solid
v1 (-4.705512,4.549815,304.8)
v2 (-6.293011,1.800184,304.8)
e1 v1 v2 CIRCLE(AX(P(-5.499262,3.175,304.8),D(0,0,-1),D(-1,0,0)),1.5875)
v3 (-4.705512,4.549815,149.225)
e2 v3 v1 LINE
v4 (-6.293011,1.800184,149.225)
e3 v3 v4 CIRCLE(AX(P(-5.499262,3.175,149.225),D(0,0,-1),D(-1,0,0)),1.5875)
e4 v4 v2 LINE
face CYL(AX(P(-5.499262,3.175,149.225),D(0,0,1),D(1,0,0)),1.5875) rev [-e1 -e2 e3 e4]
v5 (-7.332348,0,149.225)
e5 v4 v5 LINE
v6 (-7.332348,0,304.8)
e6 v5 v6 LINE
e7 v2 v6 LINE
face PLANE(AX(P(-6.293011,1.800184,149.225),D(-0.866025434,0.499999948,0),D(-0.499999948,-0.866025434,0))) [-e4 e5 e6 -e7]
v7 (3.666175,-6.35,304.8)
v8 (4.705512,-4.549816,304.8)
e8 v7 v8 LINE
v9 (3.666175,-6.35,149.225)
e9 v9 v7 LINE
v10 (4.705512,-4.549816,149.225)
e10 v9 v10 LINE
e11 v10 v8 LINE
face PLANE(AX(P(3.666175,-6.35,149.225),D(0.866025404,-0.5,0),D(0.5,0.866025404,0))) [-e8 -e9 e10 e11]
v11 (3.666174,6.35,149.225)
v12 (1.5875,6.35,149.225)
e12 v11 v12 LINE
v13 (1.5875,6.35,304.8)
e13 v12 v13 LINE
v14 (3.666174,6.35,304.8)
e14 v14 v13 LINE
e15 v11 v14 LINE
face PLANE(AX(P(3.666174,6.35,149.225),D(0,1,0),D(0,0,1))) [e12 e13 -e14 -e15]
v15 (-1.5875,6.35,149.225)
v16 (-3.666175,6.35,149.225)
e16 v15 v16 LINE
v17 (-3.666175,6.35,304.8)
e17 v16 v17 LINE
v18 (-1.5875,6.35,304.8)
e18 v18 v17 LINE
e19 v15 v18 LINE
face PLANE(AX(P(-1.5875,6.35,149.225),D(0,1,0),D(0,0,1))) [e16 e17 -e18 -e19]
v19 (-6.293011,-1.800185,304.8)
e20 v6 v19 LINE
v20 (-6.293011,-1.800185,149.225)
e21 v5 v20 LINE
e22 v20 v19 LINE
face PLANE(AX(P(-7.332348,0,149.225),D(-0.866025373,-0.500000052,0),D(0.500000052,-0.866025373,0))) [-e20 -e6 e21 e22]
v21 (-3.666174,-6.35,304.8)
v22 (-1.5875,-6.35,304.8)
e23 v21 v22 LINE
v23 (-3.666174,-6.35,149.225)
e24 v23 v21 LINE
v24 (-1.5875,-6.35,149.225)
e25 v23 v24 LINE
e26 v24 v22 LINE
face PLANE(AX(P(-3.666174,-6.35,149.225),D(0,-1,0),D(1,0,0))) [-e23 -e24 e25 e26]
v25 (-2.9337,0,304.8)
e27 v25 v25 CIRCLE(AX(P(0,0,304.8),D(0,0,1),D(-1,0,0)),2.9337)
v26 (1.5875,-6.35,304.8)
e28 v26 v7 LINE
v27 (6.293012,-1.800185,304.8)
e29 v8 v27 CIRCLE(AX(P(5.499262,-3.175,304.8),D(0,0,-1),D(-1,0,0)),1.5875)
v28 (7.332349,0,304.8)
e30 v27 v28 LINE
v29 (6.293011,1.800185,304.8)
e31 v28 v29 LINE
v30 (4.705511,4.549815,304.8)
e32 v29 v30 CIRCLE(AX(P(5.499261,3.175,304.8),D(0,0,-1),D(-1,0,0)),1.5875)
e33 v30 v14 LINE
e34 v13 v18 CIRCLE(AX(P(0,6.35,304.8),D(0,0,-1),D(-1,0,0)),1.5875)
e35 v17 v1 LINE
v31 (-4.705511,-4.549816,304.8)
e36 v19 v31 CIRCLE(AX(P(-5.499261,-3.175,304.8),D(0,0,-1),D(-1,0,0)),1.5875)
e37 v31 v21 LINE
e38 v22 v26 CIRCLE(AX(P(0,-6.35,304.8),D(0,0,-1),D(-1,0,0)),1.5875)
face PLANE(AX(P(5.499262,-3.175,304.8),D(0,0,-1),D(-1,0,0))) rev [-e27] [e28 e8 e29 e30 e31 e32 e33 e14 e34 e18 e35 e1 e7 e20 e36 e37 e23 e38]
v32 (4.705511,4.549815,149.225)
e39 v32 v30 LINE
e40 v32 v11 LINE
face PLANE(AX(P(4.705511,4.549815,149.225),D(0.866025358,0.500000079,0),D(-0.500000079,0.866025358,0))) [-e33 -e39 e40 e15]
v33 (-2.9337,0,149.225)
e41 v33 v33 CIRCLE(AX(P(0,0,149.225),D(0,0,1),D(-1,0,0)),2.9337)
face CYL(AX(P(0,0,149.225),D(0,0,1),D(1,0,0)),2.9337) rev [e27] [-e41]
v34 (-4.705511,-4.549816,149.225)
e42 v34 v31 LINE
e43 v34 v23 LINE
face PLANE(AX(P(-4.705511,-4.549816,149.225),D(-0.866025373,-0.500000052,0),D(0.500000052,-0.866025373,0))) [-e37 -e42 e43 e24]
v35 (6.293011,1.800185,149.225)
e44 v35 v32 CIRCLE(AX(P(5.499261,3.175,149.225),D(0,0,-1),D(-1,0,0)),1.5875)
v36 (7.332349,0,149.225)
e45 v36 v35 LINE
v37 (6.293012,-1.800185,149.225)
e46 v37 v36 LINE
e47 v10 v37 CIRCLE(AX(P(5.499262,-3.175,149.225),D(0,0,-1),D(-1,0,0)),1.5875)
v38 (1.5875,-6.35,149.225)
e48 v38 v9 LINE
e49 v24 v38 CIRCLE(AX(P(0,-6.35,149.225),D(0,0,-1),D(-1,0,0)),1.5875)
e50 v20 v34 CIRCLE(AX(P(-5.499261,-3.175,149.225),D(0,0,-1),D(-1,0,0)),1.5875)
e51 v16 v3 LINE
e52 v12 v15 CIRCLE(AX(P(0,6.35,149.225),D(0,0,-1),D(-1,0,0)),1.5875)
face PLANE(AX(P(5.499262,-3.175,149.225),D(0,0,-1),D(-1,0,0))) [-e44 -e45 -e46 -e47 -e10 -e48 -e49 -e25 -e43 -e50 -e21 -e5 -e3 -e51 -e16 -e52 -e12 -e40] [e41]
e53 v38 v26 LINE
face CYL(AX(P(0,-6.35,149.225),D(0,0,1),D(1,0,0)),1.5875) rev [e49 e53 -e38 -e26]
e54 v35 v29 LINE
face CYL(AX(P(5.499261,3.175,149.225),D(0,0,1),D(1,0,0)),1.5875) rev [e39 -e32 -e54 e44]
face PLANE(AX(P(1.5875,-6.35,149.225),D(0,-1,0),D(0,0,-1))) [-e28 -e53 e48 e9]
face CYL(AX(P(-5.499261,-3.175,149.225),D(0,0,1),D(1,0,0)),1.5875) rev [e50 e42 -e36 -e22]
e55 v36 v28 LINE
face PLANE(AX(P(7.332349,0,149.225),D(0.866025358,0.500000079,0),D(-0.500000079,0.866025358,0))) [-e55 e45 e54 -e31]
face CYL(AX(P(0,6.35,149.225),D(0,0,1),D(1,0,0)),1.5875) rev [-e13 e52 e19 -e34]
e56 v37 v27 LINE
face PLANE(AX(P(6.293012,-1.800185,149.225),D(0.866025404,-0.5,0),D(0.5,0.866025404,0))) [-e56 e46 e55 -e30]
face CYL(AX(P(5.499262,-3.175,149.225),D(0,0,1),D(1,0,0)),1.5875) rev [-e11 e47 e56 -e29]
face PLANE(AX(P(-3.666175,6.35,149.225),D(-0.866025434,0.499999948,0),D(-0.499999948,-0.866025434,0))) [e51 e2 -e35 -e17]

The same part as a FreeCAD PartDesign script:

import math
import FreeCAD as App
import Part
import Sketcher

V = App.Vector
Q = App.Units.Quantity

doc = App.newDocument("Part")
params = doc.addObject("Spreadsheet::Sheet", "Params")
for row, (alias, value) in enumerate([
    ("sketch1_diameter", "0.231 in"),
    ("sketch1_radius", "0.0625 in"),
    ("pad1_length", "6.125 in"),
], start=1):
    params.set(f"A{row}", alias)
    params.set(f"B{row}", "=" + value)
    params.setAlias(f"B{row}", alias)

body = doc.addObject("PartDesign::Body", "Body")

sketch1 = body.newObject("Sketcher::SketchObject", "Sketch")
sketch1.AttachmentSupport = (doc.getObject("XY_Plane"), [""])
sketch1.MapMode = "FlatFace"
sketch1.AttachmentOffset = App.Placement(V(0, 0, 12 * 25.4), App.Rotation())
sketch1.addGeometry(Part.LineSegment(V(6.3, -1.8, 0), V(7.3, 0, 0)), False)
sketch1.addGeometry(Part.LineSegment(V(7.3, 0, 0), V(6.3, 1.8, 0)), False)
sketch1.addGeometry(Part.ArcOfCircle(Part.Circle(V(5.5, 3.2, 0), V(0, 0, 1), 1.6), math.radians(120), math.radians(300)), False)
sketch1.addGeometry(Part.LineSegment(V(4.7, 4.5, 0), V(3.7, 6.3, 0)), False)
sketch1.addGeometry(Part.LineSegment(V(3.7, 6.3, 0), V(1.6, 6.3, 0)), False)
sketch1.addGeometry(Part.ArcOfCircle(Part.Circle(V(0, 6.3, 0), V(0, 0, 1), 1.6), math.radians(180), math.radians(360)), False)
sketch1.addGeometry(Part.LineSegment(V(-1.6, 6.3, 0), V(-3.7, 6.3, 0)), False)
sketch1.addGeometry(Part.LineSegment(V(-3.7, 6.3, 0), V(-4.7, 4.5, 0)), False)
sketch1.addGeometry(Part.ArcOfCircle(Part.Circle(V(-5.5, 3.2, 0), V(0, 0, 1), 1.6), math.radians(-120), math.radians(60)), False)
sketch1.addGeometry(Part.LineSegment(V(-6.3, 1.8, 0), V(-7.3, 0, 0)), False)
sketch1.addGeometry(Part.LineSegment(V(-7.3, 0, 0), V(-6.3, -1.8, 0)), False)
sketch1.addGeometry(Part.ArcOfCircle(Part.Circle(V(-5.5, -3.2, 0), V(0, 0, 1), 1.6), math.radians(-60), math.radians(120)), False)
sketch1.addGeometry(Part.LineSegment(V(-4.7, -4.5, 0), V(-3.7, -6.4, 0)), False)
sketch1.addGeometry(Part.LineSegment(V(-3.7, -6.4, 0), V(-1.6, -6.4, 0)), False)
sketch1.addGeometry(Part.ArcOfCircle(Part.Circle(V(0, -6.4, 0), V(0, 0, 1), 1.6), math.radians(0), math.radians(180)), False)
sketch1.addGeometry(Part.LineSegment(V(1.6, -6.4, 0), V(3.7, -6.4, 0)), False)
sketch1.addGeometry(Part.LineSegment(V(3.7, -6.4, 0), V(4.7, -4.5, 0)), False)
sketch1.addGeometry(Part.ArcOfCircle(Part.Circle(V(5.5, -3.2, 0), V(0, 0, 1), 1.6), math.radians(60), math.radians(240)), False)
sketch1.addGeometry(Part.Circle(V(0, 0, 0), V(0, 0, 1), 2.9), False)
sketch1.addConstraint(Sketcher.Constraint("Coincident", 0, 2, 1, 1))
sketch1.addConstraint(Sketcher.Constraint("Coincident", 1, 2, 2, 2))
sketch1.addConstraint(Sketcher.Constraint("Coincident", 2, 1, 3, 1))
sketch1.addConstraint(Sketcher.Constraint("Coincident", 3, 2, 4, 1))
sketch1.addConstraint(Sketcher.Constraint("Coincident", 4, 2, 5, 2))
sketch1.addConstraint(Sketcher.Constraint("Coincident", 5, 1, 6, 1))
sketch1.addConstraint(Sketcher.Constraint("Coincident", 6, 2, 7, 1))
sketch1.addConstraint(Sketcher.Constraint("Coincident", 7, 2, 8, 2))
sketch1.addConstraint(Sketcher.Constraint("Coincident", 8, 1, 9, 1))
sketch1.addConstraint(Sketcher.Constraint("Coincident", 9, 2, 10, 1))
sketch1.addConstraint(Sketcher.Constraint("Coincident", 10, 2, 11, 2))
sketch1.addConstraint(Sketcher.Constraint("Coincident", 11, 1, 12, 1))
sketch1.addConstraint(Sketcher.Constraint("Coincident", 12, 2, 13, 1))
sketch1.addConstraint(Sketcher.Constraint("Coincident", 13, 2, 14, 2))
sketch1.addConstraint(Sketcher.Constraint("Coincident", 14, 1, 15, 1))
sketch1.addConstraint(Sketcher.Constraint("Coincident", 15, 2, 16, 1))
sketch1.addConstraint(Sketcher.Constraint("Coincident", 16, 2, 17, 2))
sketch1.addConstraint(Sketcher.Constraint("Coincident", 17, 1, 0, 1))
sketch1.addConstraint(Sketcher.Constraint("Horizontal", 4))
sketch1.addConstraint(Sketcher.Constraint("Horizontal", 6))
sketch1.addConstraint(Sketcher.Constraint("Horizontal", 13))
sketch1.addConstraint(Sketcher.Constraint("Horizontal", 15))
sketch1.addConstraint(Sketcher.Constraint("Coincident", 18, 3, -1, 1))
sketch1.addConstraint(Sketcher.Constraint("Equal", 2, 5))
sketch1.addConstraint(Sketcher.Constraint("Equal", 5, 8))
sketch1.addConstraint(Sketcher.Constraint("Equal", 8, 11))
sketch1.addConstraint(Sketcher.Constraint("Equal", 11, 14))
sketch1.addConstraint(Sketcher.Constraint("Equal", 14, 17))
sketch1.addConstraint(Sketcher.Constraint("Symmetric", 2, 3, 11, 3, -1, 1))
sketch1.addConstraint(Sketcher.Constraint("Symmetric", 5, 3, 14, 3, -1, 1))
sketch1.addConstraint(Sketcher.Constraint("Symmetric", 8, 3, 17, 3, -1, 1))
sketch1.addConstraint(Sketcher.Constraint("Symmetric", 0, 2, 9, 2, -1, 1))
sketch1.addConstraint(Sketcher.Constraint("Symmetric", 3, 2, 12, 2, -1, 1))
sketch1.addConstraint(Sketcher.Constraint("Symmetric", 6, 2, 15, 2, -1, 1))
sketch1.addConstraint(Sketcher.Constraint("Symmetric", 2, 3, 8, 3, -2))
sketch1.addConstraint(Sketcher.Constraint("Symmetric", 4, 2, 5, 1, -2))
sketch1.addConstraint(Sketcher.Constraint("PointOnObject", 0, 2, -1))
sketch1.addConstraint(Sketcher.Constraint("Parallel", 1, 3))
sketch1.addConstraint(Sketcher.Constraint("Parallel", 0, 7))
sketch1.addConstraint(Sketcher.Constraint("Parallel", 7, 9))
sketch1.addConstraint(Sketcher.Constraint("Parallel", 3, 10))
sketch1.addConstraint(Sketcher.Constraint("Parallel", 10, 12))
sketch1.addConstraint(Sketcher.Constraint("Parallel", 9, 16))
sketch1.addConstraint(Sketcher.Constraint("Horizontal", 5, 3, 3, 2))
sketch1.addConstraint(Sketcher.Constraint("Horizontal", 2, 1, 7, 2))
sketch1.addConstraint(Sketcher.Constraint("Horizontal", 1, 2, 8, 1))
sketch1.addConstraint(Sketcher.Constraint("Equal", 1, 3))
sketch1.addConstraint(Sketcher.Constraint("Diameter", 18, Q("0.231 in")))
sketch1.addConstraint(Sketcher.Constraint("Angle", 0, Q("60 deg")))
sketch1.addConstraint(Sketcher.Constraint("Radius", 2, Q("0.0625 in")))
sketch1.addConstraint(Sketcher.Constraint("DistanceY", 14, 3, 5, 3, Q("0.5 in")))
sketch1.addConstraint(Sketcher.Constraint("DistanceY", 11, 3, 8, 3, Q("0.25 in")))
sketch1.addConstraint(Sketcher.Constraint("DistanceX", 2, 3, 1, 2, Q("0.03125 in")))
sketch1.addConstraint(Sketcher.Constraint("DistanceX", 4, 2, 4, 1, Q("2.078674 mm")))
sketch1.setExpression("Constraints[47]", "Params.sketch1_diameter")
sketch1.setExpression("Constraints[49]", "Params.sketch1_radius")
pad1 = body.newObject("PartDesign::Pad", "Pad")
pad1.Profile = sketch1
pad1.setExpression("Length", "Params.pad1_length")
pad1.Reversed = True

doc.recompute()
